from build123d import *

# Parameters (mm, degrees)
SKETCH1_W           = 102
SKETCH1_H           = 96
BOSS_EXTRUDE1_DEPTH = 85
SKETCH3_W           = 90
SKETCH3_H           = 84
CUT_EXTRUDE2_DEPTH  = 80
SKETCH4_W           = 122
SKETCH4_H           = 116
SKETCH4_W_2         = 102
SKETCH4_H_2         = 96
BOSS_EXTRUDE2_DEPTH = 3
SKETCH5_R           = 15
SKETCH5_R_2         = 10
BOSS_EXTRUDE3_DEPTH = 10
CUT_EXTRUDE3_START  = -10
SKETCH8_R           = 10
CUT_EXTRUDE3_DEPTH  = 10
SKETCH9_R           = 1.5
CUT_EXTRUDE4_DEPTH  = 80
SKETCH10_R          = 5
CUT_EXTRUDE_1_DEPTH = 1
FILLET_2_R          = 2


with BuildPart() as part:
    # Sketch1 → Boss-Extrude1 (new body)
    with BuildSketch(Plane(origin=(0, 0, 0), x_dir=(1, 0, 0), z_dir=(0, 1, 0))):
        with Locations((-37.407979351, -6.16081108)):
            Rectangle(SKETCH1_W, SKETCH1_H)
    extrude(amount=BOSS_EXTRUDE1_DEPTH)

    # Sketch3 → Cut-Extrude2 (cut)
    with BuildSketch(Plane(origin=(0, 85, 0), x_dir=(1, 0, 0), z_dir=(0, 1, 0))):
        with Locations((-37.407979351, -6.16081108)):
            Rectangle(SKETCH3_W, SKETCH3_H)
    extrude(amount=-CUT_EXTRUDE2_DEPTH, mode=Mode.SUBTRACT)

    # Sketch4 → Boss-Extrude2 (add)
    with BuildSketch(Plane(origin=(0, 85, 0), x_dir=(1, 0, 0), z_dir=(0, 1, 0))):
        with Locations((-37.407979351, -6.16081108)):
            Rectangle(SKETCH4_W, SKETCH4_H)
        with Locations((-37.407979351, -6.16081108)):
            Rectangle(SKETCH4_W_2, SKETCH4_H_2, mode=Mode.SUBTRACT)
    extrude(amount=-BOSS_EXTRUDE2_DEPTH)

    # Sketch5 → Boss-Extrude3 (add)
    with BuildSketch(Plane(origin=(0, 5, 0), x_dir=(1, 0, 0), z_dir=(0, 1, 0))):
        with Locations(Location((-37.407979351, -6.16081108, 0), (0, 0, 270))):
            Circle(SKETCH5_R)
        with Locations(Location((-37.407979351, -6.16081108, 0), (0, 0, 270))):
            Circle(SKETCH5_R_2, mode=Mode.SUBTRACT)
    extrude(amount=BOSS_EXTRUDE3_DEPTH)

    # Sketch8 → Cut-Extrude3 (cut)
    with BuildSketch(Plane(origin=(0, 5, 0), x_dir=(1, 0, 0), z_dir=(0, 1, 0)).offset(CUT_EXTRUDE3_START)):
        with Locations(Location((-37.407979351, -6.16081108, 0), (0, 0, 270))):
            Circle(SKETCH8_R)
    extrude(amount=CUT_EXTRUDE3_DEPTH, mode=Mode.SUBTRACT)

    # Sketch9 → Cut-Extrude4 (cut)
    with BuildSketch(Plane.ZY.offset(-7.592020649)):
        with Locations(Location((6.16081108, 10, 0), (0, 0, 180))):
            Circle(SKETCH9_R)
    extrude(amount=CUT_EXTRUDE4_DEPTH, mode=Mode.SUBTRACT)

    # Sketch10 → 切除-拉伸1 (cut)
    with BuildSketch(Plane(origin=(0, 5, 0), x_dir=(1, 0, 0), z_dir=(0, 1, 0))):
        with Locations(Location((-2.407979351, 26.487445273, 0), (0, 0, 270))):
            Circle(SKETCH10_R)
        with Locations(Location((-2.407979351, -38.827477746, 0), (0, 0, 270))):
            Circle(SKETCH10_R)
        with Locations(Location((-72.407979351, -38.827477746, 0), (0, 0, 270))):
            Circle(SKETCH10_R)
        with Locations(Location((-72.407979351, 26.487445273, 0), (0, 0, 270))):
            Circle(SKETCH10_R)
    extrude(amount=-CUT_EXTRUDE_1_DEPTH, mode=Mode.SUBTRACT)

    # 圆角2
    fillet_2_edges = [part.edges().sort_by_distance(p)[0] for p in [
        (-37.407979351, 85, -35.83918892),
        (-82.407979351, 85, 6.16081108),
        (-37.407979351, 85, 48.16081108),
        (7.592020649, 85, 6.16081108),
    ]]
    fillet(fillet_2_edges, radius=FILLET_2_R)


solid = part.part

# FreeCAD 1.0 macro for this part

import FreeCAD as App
import Part
import Sketcher
Q = App.Units.Quantity


def edges_at(feature, points):
    """Names of the edges that pass closest to the given points."""
    edges = feature.Shape.Edges
    near = lambda p: min(range(len(edges)), key=lambda i: edges[i].distToShape(Part.Vertex(*p))[0])
    return sorted({f"Edge{near(p) + 1}" for p in points})


def add_polygon(sketch, points):
    """Adds a closed chain of lines whose ends are joined by coincident constraints."""
    first, n = sketch.GeometryCount, len(points)
    for a, b in zip(points, points[1:] + points[:1]):
        sketch.addGeometry(Part.LineSegment(App.Vector(*a, 0), App.Vector(*b, 0)), False)
    for i in range(n):
        sketch.addConstraint(Sketcher.Constraint("Coincident", first + i, 2, first + (i + 1) % n, 1))

doc = App.newDocument("Part")
body = doc.addObject("PartDesign::Body", "Body")

# Sketch on XZ plane
sketch1 = body.newObject("Sketcher::SketchObject", "Sketch")
sketch1.AttachmentSupport = (doc.getObject("XZ_Plane"), [""])
sketch1.MapMode = "FlatFace"
add_polygon(sketch1, [(-88.407979, -41.839189), (-88.407979, 54.160811), (13.592021, 54.160811), (13.592021, -41.839189)])  # lines 0-3
sketch1.addConstraint(Sketcher.Constraint("Vertical", 0))
sketch1.addConstraint(Sketcher.Constraint("Horizontal", 1))
sketch1.addConstraint(Sketcher.Constraint("Vertical", 2))
sketch1.addConstraint(Sketcher.Constraint("Horizontal", 3))
sketch1.addConstraint(Sketcher.Constraint("DistanceX", 1, 1, 1, 2, Q("102 mm")))
sketch1.addConstraint(Sketcher.Constraint("DistanceY", 0, 1, 0, 2, Q("96 mm")))
sketch1.addConstraint(Sketcher.Constraint("DistanceX", 0, 2, -1, 1, Q("88.407979 mm")))
sketch1.addConstraint(Sketcher.Constraint("DistanceY", -1, 1, 0, 2, Q("54.160811 mm")))
pad1 = body.newObject("PartDesign::Pad", "Pad")
pad1.Profile = sketch1
pad1.Length = 85
pad1.Reversed = True

# Sketch on XZ plane
sketch2 = body.newObject("Sketcher::SketchObject", "Sketch001")
sketch2.AttachmentSupport = (doc.getObject("XZ_Plane"), [""])
sketch2.MapMode = "FlatFace"
sketch2.AttachmentOffset = App.Placement(App.Vector(0, 0, -85), App.Rotation())
add_polygon(sketch2, [(-82.407979, -35.839189), (-82.407979, 48.160811), (7.592021, 48.160811), (7.592021, -35.839189)])  # lines 0-3
sketch2.addConstraint(Sketcher.Constraint("Vertical", 0))
sketch2.addConstraint(Sketcher.Constraint("Horizontal", 1))
sketch2.addConstraint(Sketcher.Constraint("Vertical", 2))
sketch2.addConstraint(Sketcher.Constraint("Horizontal", 3))
sketch2.addConstraint(Sketcher.Constraint("DistanceX", 1, 1, 1, 2, Q("90 mm")))
sketch2.addConstraint(Sketcher.Constraint("DistanceY", 0, 1, 0, 2, Q("84 mm")))
sketch2.addConstraint(Sketcher.Constraint("DistanceX", 0, 2, -1, 1, Q("82.407979 mm")))
sketch2.addConstraint(Sketcher.Constraint("DistanceY", -1, 1, 0, 2, Q("48.160811 mm")))
pocket1 = body.newObject("PartDesign::Pocket", "Pocket")
pocket1.Profile = sketch2
pocket1.Length = 80
pocket1.Reversed = True

# Sketch on XZ plane
sketch3 = body.newObject("Sketcher::SketchObject", "Sketch002")
sketch3.AttachmentSupport = (doc.getObject("XZ_Plane"), [""])
sketch3.MapMode = "FlatFace"
sketch3.AttachmentOffset = App.Placement(App.Vector(0, 0, -85), App.Rotation())
add_polygon(sketch3, [(-98.407979, -51.839189), (-98.407979, 64.160811), (23.592021, 64.160811), (23.592021, -51.839189)])  # lines 0-3
add_polygon(sketch3, [(13.592021, 54.160811), (-88.407979, 54.160811), (-88.407979, -41.839189), (13.592021, -41.839189)])  # lines 4-7
sketch3.addConstraint(Sketcher.Constraint("Vertical", 0))
sketch3.addConstraint(Sketcher.Constraint("Horizontal", 1))
sketch3.addConstraint(Sketcher.Constraint("Vertical", 2))
sketch3.addConstraint(Sketcher.Constraint("Horizontal", 3))
sketch3.addConstraint(Sketcher.Constraint("Horizontal", 4))
sketch3.addConstraint(Sketcher.Constraint("Vertical", 5))
sketch3.addConstraint(Sketcher.Constraint("Horizontal", 6))
sketch3.addConstraint(Sketcher.Constraint("Vertical", 7))
sketch3.addConstraint(Sketcher.Constraint("DistanceX", 1, 1, 1, 2, Q("122 mm")))
sketch3.addConstraint(Sketcher.Constraint("DistanceX", 4, 2, 4, 1, Q("102 mm")))
sketch3.addConstraint(Sketcher.Constraint("DistanceY", 0, 1, 0, 2, Q("116 mm")))
sketch3.addConstraint(Sketcher.Constraint("DistanceY", 5, 2, 5, 1, Q("96 mm")))
sketch3.addConstraint(Sketcher.Constraint("DistanceX", 0, 2, 4, 2, Q("10 mm")))
sketch3.addConstraint(Sketcher.Constraint("DistanceY", 4, 2, 0, 2, Q("10 mm")))
sketch3.addConstraint(Sketcher.Constraint("DistanceX", 0, 2, -1, 1, Q("98.407979 mm")))
sketch3.addConstraint(Sketcher.Constraint("DistanceY", -1, 1, 0, 2, Q("64.160811 mm")))
pad2 = body.newObject("PartDesign::Pad", "Pad001")
pad2.Profile = sketch3
pad2.Length = 3

# Sketch on XZ plane
sketch4 = body.newObject("Sketcher::SketchObject", "Sketch003")
sketch4.AttachmentSupport = (doc.getObject("XZ_Plane"), [""])
sketch4.MapMode = "FlatFace"
sketch4.AttachmentOffset = App.Placement(App.Vector(0, 0, -5), App.Rotation())
sketch4.addGeometry(Part.Circle(App.Vector(-37.407979, 6.160811, 0), App.Vector(0, 0, 1), 15), False)
sketch4.addGeometry(Part.Circle(App.Vector(-37.407979, 6.160811, 0), App.Vector(0, 0, 1), 10), False)
sketch4.addConstraint(Sketcher.Constraint("Coincident", 1, 3, 0, 3))
sketch4.addConstraint(Sketcher.Constraint("Diameter", 0, Q("30 mm")))
sketch4.addConstraint(Sketcher.Constraint("Diameter", 1, Q("20 mm")))
sketch4.addConstraint(Sketcher.Constraint("DistanceX", 0, 3, -1, 1, Q("37.407979 mm")))
sketch4.addConstraint(Sketcher.Constraint("DistanceY", -1, 1, 0, 3, Q("6.160811 mm")))
pad3 = body.newObject("PartDesign::Pad", "Pad002")
pad3.Profile = sketch4
pad3.Length = 10
pad3.Reversed = True

# Sketch on XZ plane
sketch5 = body.newObject("Sketcher::SketchObject", "Sketch004")
sketch5.AttachmentSupport = (doc.getObject("XZ_Plane"), [""])
sketch5.MapMode = "FlatFace"
sketch5.AttachmentOffset = App.Placement(App.Vector(0, 0, 5), App.Rotation())
sketch5.addGeometry(Part.Circle(App.Vector(-37.407979, 6.160811, 0), App.Vector(0, 0, 1), 10), False)
sketch5.addConstraint(Sketcher.Constraint("Diameter", 0, Q("20 mm")))
sketch5.addConstraint(Sketcher.Constraint("DistanceX", 0, 3, -1, 1, Q("37.407979 mm")))
sketch5.addConstraint(Sketcher.Constraint("DistanceY", -1, 1, 0, 3, Q("6.160811 mm")))
pocket2 = body.newObject("PartDesign::Pocket", "Pocket001")
pocket2.Profile = sketch5
pocket2.Length = 10

# Sketch on YZ plane
sketch6 = body.newObject("Sketcher::SketchObject", "Sketch005")
sketch6.AttachmentSupport = (doc.getObject("YZ_Plane"), [""])
sketch6.MapMode = "FlatFace"
sketch6.AttachmentOffset = App.Placement(App.Vector(0, 0, 7.592021), App.Rotation())
sketch6.addGeometry(Part.Circle(App.Vector(10, 6.160811, 0), App.Vector(0, 0, 1), 1.5), False)
sketch6.addConstraint(Sketcher.Constraint("Diameter", 0, Q("3 mm")))
sketch6.addConstraint(Sketcher.Constraint("DistanceX", -1, 1, 0, 3, Q("10 mm")))
sketch6.addConstraint(Sketcher.Constraint("DistanceY", -1, 1, 0, 3, Q("6.160811 mm")))
pocket3 = body.newObject("PartDesign::Pocket", "Pocket002")
pocket3.Profile = sketch6
pocket3.Length = 80

# Sketch on XZ plane
sketch7 = body.newObject("Sketcher::SketchObject", "Sketch006")
sketch7.AttachmentSupport = (doc.getObject("XZ_Plane"), [""])
sketch7.MapMode = "FlatFace"
sketch7.AttachmentOffset = App.Placement(App.Vector(0, 0, -5), App.Rotation())
sketch7.addGeometry(Part.Circle(App.Vector(-2.407979, -26.487445, 0), App.Vector(0, 0, 1), 5), False)
sketch7.addGeometry(Part.Circle(App.Vector(-2.407979, 38.827478, 0), App.Vector(0, 0, 1), 5), False)
sketch7.addGeometry(Part.Circle(App.Vector(-72.407979, 38.827478, 0), App.Vector(0, 0, 1), 5), False)
sketch7.addGeometry(Part.Circle(App.Vector(-72.407979, -26.487445, 0), App.Vector(0, 0, 1), 5), False)
sketch7.addConstraint(Sketcher.Constraint("Equal", 0, 1))
sketch7.addConstraint(Sketcher.Constraint("Equal", 1, 2))
sketch7.addConstraint(Sketcher.Constraint("Equal", 2, 3))
sketch7.addConstraint(Sketcher.Constraint("Horizontal", 1, 3, 2, 3))
sketch7.addConstraint(Sketcher.Constraint("Horizontal", 0, 3, 3, 3))
sketch7.addConstraint(Sketcher.Constraint("Vertical", 0, 3, 1, 3))
sketch7.addConstraint(Sketcher.Constraint("Vertical", 2, 3, 3, 3))
sketch7.addConstraint(Sketcher.Constraint("Diameter", 0, Q("10 mm")))
sketch7.addConstraint(Sketcher.Constraint("DistanceX", 2, 3, 1, 3, Q("70 mm")))
sketch7.addConstraint(Sketcher.Constraint("DistanceX", 0, 3, -1, 1, Q("2.407979 mm")))
sketch7.addConstraint(Sketcher.Constraint("DistanceY", 0, 3, -1, 1, Q("26.487445 mm")))
sketch7.addConstraint(Sketcher.Constraint("DistanceY", -1, 1, 1, 3, Q("38.827478 mm")))
pocket4 = body.newObject("PartDesign::Pocket", "Pocket003")
pocket4.Profile = sketch7
pocket4.Length = 1
pocket4.Reversed = True
doc.recompute()

fillet = body.newObject("PartDesign::Fillet", "Fillet")
fillet.Base = (pocket4, edges_at(pocket4, [
    (-37.408, 85, -35.839),
    (-82.408, 85, 6.161),
    (-37.408, 85, 48.161),
    (7.592, 85, 6.161),
]))
fillet.Radius = 2

doc.recompute()
